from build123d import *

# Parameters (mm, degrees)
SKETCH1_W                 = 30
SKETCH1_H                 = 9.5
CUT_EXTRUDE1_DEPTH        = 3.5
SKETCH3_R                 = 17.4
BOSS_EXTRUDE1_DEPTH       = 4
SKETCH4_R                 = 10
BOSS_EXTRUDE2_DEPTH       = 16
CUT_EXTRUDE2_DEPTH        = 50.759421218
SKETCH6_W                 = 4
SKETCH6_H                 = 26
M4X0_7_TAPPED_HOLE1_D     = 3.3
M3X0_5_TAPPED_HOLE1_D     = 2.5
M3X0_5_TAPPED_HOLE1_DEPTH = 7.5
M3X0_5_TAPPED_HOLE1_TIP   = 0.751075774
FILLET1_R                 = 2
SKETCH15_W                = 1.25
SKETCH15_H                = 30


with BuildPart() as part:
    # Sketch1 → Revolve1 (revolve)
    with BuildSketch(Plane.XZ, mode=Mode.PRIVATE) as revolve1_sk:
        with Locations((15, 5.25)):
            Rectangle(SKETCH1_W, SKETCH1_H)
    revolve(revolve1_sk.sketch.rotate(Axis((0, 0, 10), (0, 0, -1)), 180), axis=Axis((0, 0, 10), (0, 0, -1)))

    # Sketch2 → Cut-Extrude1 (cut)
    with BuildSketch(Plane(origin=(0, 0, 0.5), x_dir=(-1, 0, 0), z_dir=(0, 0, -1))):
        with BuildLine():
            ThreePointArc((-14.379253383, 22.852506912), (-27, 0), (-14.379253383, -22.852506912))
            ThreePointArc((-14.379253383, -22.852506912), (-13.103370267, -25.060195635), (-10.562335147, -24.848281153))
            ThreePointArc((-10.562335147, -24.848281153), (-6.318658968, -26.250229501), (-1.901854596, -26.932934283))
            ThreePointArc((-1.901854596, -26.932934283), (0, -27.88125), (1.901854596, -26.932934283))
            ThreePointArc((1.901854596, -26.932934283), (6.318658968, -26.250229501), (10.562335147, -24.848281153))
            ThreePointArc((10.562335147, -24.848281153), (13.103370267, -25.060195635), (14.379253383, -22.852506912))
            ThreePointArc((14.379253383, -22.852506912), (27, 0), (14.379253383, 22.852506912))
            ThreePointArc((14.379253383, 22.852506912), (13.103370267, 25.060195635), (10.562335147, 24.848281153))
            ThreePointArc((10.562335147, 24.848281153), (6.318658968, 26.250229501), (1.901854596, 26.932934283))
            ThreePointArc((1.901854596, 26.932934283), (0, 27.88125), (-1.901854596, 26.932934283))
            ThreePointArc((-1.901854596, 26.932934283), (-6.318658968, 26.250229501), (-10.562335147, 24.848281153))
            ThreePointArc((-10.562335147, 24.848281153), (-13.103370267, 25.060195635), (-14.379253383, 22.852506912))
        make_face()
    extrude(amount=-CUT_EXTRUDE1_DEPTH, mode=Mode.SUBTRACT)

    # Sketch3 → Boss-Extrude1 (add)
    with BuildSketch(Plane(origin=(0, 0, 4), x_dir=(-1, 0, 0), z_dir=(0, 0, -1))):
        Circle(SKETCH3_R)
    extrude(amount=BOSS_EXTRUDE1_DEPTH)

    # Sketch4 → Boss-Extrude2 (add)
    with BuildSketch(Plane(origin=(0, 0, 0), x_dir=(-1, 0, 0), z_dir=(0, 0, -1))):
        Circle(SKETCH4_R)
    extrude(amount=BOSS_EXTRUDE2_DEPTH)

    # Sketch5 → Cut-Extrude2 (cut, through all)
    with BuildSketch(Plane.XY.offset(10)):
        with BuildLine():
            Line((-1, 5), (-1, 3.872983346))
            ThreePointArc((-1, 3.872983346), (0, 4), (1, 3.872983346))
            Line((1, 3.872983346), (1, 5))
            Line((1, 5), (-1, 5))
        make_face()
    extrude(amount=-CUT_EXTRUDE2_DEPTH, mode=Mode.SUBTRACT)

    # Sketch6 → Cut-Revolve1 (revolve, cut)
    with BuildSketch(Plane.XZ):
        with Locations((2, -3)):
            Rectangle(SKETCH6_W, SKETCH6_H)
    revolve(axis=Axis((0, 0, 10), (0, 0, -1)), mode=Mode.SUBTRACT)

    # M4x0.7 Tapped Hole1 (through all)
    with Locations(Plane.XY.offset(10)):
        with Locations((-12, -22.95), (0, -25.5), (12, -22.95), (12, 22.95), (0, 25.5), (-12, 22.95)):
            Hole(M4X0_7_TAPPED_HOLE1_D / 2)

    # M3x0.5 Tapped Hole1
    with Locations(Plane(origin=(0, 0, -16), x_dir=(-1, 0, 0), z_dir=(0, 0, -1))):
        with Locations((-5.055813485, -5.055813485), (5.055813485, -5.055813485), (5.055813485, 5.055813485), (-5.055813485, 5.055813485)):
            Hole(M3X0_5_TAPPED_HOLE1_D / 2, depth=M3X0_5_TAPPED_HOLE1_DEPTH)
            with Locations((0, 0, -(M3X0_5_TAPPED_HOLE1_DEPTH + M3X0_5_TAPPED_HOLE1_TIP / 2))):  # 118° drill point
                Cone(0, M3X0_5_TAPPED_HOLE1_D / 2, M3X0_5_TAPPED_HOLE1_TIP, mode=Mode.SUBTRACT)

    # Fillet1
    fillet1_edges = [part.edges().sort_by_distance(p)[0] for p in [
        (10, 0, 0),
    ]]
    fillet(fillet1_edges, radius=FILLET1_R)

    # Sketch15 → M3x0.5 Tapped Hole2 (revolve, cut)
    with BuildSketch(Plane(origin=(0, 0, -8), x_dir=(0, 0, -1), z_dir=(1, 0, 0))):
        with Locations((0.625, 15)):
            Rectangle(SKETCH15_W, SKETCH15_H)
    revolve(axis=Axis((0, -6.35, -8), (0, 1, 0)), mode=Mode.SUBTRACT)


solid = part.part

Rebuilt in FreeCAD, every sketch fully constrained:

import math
import FreeCAD as App
import Part
import Sketcher
from FreeCAD import Vector


def edges_at(feature, points):
    """Names of the edges that pass closest to the given points."""
    edges = feature.Shape.Edges
    near = lambda p: min(range(len(edges)), key=lambda i: edges[i].distToShape(Part.Vertex(*p))[0])
    return sorted({f"Edge{near(p) + 1}" for p in points})

doc = App.newDocument("Part")
body = doc.addObject("PartDesign::Body", "Body")

# Sketch on XZ plane
sketch1 = body.newObject("Sketcher::SketchObject", "Sketch")
sketch1.AttachmentSupport = (doc.getObject("XZ_Plane"), [""])
sketch1.MapMode = "FlatFace"
sketch1.addGeometry([
    Part.LineSegment(Vector(0, 10, 0), Vector(0, 0, 0)),
    Part.LineSegment(Vector(0, 0, 0), Vector(30, 0, 0)),
    Part.LineSegment(Vector(30, 0, 0), Vector(30, 10, 0)),
    Part.LineSegment(Vector(30, 10, 0), Vector(0, 10, 0)),
], False)
sketch1.addConstraint([
    Sketcher.Constraint("Coincident", 0, 2, 1, 1),
    Sketcher.Constraint("Coincident", 1, 2, 2, 1),
    Sketcher.Constraint("Coincident", 2, 2, 3, 1),
    Sketcher.Constraint("Coincident", 3, 2, 0, 1),
    Sketcher.Constraint("Vertical", 0),
    Sketcher.Constraint("Horizontal", 1),
    Sketcher.Constraint("Vertical", 2),
    Sketcher.Constraint("Horizontal", 3),
    Sketcher.Constraint("PointOnObject", 0, 2, -2),
    Sketcher.Constraint("DistanceX", 1, 1, 1, 2, 30.0),
    Sketcher.Constraint("DistanceY", 0, 2, 0, 1, 9.5),
    Sketcher.Constraint("DistanceY", -1, 1, 2, 2, 10.0),
])
revolution = body.newObject("PartDesign::Revolution", "Revolution")
revolution.Profile = sketch1
revolution.ReferenceAxis = (sketch1, ["V_Axis"])
revolution.Angle = 360

# Sketch on XY plane
sketch2 = body.newObject("Sketcher::SketchObject", "Sketch001")
sketch2.AttachmentSupport = (doc.getObject("XY_Plane"), [""])
sketch2.MapMode = "FlatFace"
sketch2.AttachmentOffset = App.Placement(Vector(0, 0, 0.5), App.Rotation())
sketch2.addGeometry([
    Part.ArcOfCircle(Part.Circle(Vector(0, 0, 0), Vector(0, 0, 1), 27), math.radians(-58), math.radians(58)),  # 0
    Part.ArcOfCircle(Part.Circle(Vector(12, -22.9, 0), Vector(0, 0, 1), 2.4), math.radians(-127), math.radians(2)),  # 1
    Part.ArcOfCircle(Part.Circle(Vector(0, 0, 0), Vector(0, 0, 1), 27), math.radians(-85.96), math.radians(-66.97)),  # 2
    Part.ArcOfCircle(Part.Circle(Vector(0, -25.5, 0), Vector(0, 0, 1), 2.4), math.radians(-143), math.radians(-37)),  # 3
    Part.ArcOfCircle(Part.Circle(Vector(0, 0, 0), Vector(0, 0, 1), 27), math.radians(-113.03), math.radians(-94.04)),  # 4
    Part.ArcOfCircle(Part.Circle(Vector(-12, -22.9, 0), Vector(0, 0, 1), 2.4), math.radians(178), math.radians(307)),  # 5
    Part.ArcOfCircle(Part.Circle(Vector(0, 0, 0), Vector(0, 0, 1), 27), math.radians(122), math.radians(238)),  # 6
    Part.ArcOfCircle(Part.Circle(Vector(-12, 22.9, 0), Vector(0, 0, 1), 2.4), math.radians(53), math.radians(182)),  # 7
    Part.ArcOfCircle(Part.Circle(Vector(0, 0, 0), Vector(0, 0, 1), 27), math.radians(94.04), math.radians(113.03)),  # 8
    Part.ArcOfCircle(Part.Circle(Vector(0, 25.5, 0), Vector(0, 0, 1), 2.4), math.radians(37), math.radians(143)),  # 9
    Part.ArcOfCircle(Part.Circle(Vector(0, 0, 0), Vector(0, 0, 1), 27), math.radians(66.97), math.radians(85.96)),  # 10
    Part.ArcOfCircle(Part.Circle(Vector(12, 22.9, 0), Vector(0, 0, 1), 2.4), math.radians(-2), math.radians(127)),  # 11
], False)
sketch2.addConstraint([
    Sketcher.Constraint("Coincident", 0, 1, 1, 2),
    Sketcher.Constraint("Coincident", 1, 1, 2, 2),
    Sketcher.Constraint("Coincident", 2, 1, 3, 2),
    Sketcher.Constraint("Coincident", 3, 1, 4, 2),
    Sketcher.Constraint("Coincident", 4, 1, 5, 2),
    Sketcher.Constraint("Coincident", 5, 1, 6, 2),
    Sketcher.Constraint("Coincident", 6, 1, 7, 2),
    Sketcher.Constraint("Coincident", 7, 1, 8, 2),
    Sketcher.Constraint("Coincident", 8, 1, 9, 2),
    Sketcher.Constraint("Coincident", 9, 1, 10, 2),
    Sketcher.Constraint("Coincident", 10, 1, 11, 2),
    Sketcher.Constraint("Coincident", 11, 1, 0, 2),
    Sketcher.Constraint("Coincident", 0, 3, -1, 1),
    Sketcher.Constraint("Coincident", 2, 3, -1, 1),
    Sketcher.Constraint("Coincident", 4, 3, -1, 1),
    Sketcher.Constraint("Coincident", 6, 3, -1, 1),
    Sketcher.Constraint("Coincident", 8, 3, -1, 1),
    Sketcher.Constraint("Coincident", 10, 3, -1, 1),
    Sketcher.Constraint("Equal", 0, 2),
    Sketcher.Constraint("Equal", 1, 3),
    Sketcher.Constraint("Equal", 2, 4),
    Sketcher.Constraint("Equal", 3, 5),
    Sketcher.Constraint("Equal", 4, 6),
    Sketcher.Constraint("Equal", 5, 7),
    Sketcher.Constraint("Equal", 6, 8),
    Sketcher.Constraint("Equal", 7, 9),
    Sketcher.Constraint("Equal", 8, 10),
    Sketcher.Constraint("Equal", 9, 11),
    Sketcher.Constraint("Symmetric", 1, 3, 7, 3, -1, 1),
    Sketcher.Constraint("Symmetric", 3, 3, 9, 3, -1, 1),
    Sketcher.Constraint("Symmetric", 5, 3, 11, 3, -1, 1),
    Sketcher.Constraint("Symmetric", 1, 3, 5, 3, -2),
    Sketcher.Constraint("PointOnObject", 3, 3, -2),
    Sketcher.Constraint("Radius", 0, 27.0),
    Sketcher.Constraint("DistanceX", -1, 1, 1, 3, 12.0),
    Sketcher.Constraint("DistanceY", 3, 3, -1, 1, 25.5),
    Sketcher.Constraint("DistanceY", 5, 3, 7, 3, 45.9),
    Sketcher.Constraint("Radius", 1, 2.38125),
])
pocket1 = body.newObject("PartDesign::Pocket", "Pocket")
pocket1.Profile = sketch2
pocket1.Length = 3.5
pocket1.Reversed = True

# Sketch on XY plane
sketch3 = body.newObject("Sketcher::SketchObject", "Sketch002")
sketch3.AttachmentSupport = (doc.getObject("XY_Plane"), [""])
sketch3.MapMode = "FlatFace"
sketch3.AttachmentOffset = App.Placement(Vector(0, 0, 4), App.Rotation())
sketch3.addGeometry(Part.Circle(Vector(0, 0, 0), Vector(0, 0, 1), 17), False)
sketch3.addConstraint([
    Sketcher.Constraint("Coincident", 0, 3, -1, 1),
    Sketcher.Constraint("Diameter", 0, 34.8),
])
pad1 = body.newObject("PartDesign::Pad", "Pad")
pad1.Profile = sketch3
pad1.Length = 4
pad1.Reversed = True

# Sketch on XY plane
sketch4 = body.newObject("Sketcher::SketchObject", "Sketch003")
sketch4.AttachmentSupport = (doc.getObject("XY_Plane"), [""])
sketch4.MapMode = "FlatFace"
sketch4.addGeometry(Part.Circle(Vector(0, 0, 0), Vector(0, 0, 1), 10), False)
sketch4.addConstraint([
    Sketcher.Constraint("Coincident", 0, 3, -1, 1),
    Sketcher.Constraint("Diameter", 0, 20.0),
])
pad2 = body.newObject("PartDesign::Pad", "Pad001")
pad2.Profile = sketch4
pad2.Length = 16
pad2.Reversed = True

# Sketch on XY plane
sketch5 = body.newObject("Sketcher::SketchObject", "Sketch004")
sketch5.AttachmentSupport = (doc.getObject("XY_Plane"), [""])
sketch5.MapMode = "FlatFace"
sketch5.AttachmentOffset = App.Placement(Vector(0, 0, 10), App.Rotation())
sketch5.addGeometry([
    Part.LineSegment(Vector(-1, 5, 0), Vector(-1, 3.9, 0)),
    Part.ArcOfCircle(Part.Circle(Vector(0, 0, 0), Vector(0, 0, 1), 4), math.radians(76), math.radians(104)),
    Part.LineSegment(Vector(1, 3.9, 0), Vector(1, 5, 0)),
    Part.LineSegment(Vector(1, 5, 0), Vector(-1, 5, 0)),
], False)
sketch5.addConstraint([
    Sketcher.Constraint("Coincident", 0, 2, 1, 2),
    Sketcher.Constraint("Coincident", 1, 1, 2, 1),
    Sketcher.Constraint("Coincident", 2, 2, 3, 1),
    Sketcher.Constraint("Coincident", 3, 2, 0, 1),
    Sketcher.Constraint("Vertical", 0),
    Sketcher.Constraint("Vertical", 2),
    Sketcher.Constraint("Horizontal", 3),
    Sketcher.Constraint("Coincident", 1, 3, -1, 1),
    Sketcher.Constraint("Horizontal", 0, 2, 1, 1),
    Sketcher.Constraint("Radius", 1, 4.0),
    Sketcher.Constraint("DistanceX", 3, 2, 3, 1, 2.0),
    Sketcher.Constraint("DistanceY", -1, 1, 2, 2, 5.0),
])
pocket2 = body.newObject("PartDesign::Pocket", "Pocket001")
pocket2.Profile = sketch5
pocket2.Type = "ThroughAll"

# Sketch on XZ plane
sketch6 = body.newObject("Sketcher::SketchObject", "Sketch005")
sketch6.AttachmentSupport = (doc.getObject("XZ_Plane"), [""])
sketch6.MapMode = "FlatFace"
sketch6.addGeometry([
    Part.LineSegment(Vector(0, 10, 0), Vector(0, -16, 0)),
    Part.LineSegment(Vector(0, -16, 0), Vector(4, -16, 0)),
    Part.LineSegment(Vector(4, -16, 0), Vector(4, 10, 0)),
    Part.LineSegment(Vector(4, 10, 0), Vector(0, 10, 0)),
], False)
sketch6.addConstraint([
    Sketcher.Constraint("Coincident", 0, 2, 1, 1),
    Sketcher.Constraint("Coincident", 1, 2, 2, 1),
    Sketcher.Constraint("Coincident", 2, 2, 3, 1),
    Sketcher.Constraint("Coincident", 3, 2, 0, 1),
    Sketcher.Constraint("Vertical", 0),
    Sketcher.Constraint("Horizontal", 1),
    Sketcher.Constraint("Vertical", 2),
    Sketcher.Constraint("Horizontal", 3),
    Sketcher.Constraint("PointOnObject", 0, 2, -2),
    Sketcher.Constraint("DistanceX", 1, 1, 1, 2, 4.0),
    Sketcher.Constraint("DistanceY", 0, 2, 0, 1, 26.0),
    Sketcher.Constraint("DistanceY", 0, 2, -1, 1, 16.0),
])
groove = body.newObject("PartDesign::Groove", "Groove")
groove.Profile = sketch6
groove.ReferenceAxis = (sketch6, ["V_Axis"])
groove.Angle = 360

# Sketch on XY plane
sketch7 = body.newObject("Sketcher::SketchObject", "Sketch006")
sketch7.AttachmentSupport = (doc.getObject("XY_Plane"), [""])
sketch7.MapMode = "FlatFace"
sketch7.AttachmentOffset = App.Placement(Vector(0, 0, 10), App.Rotation())
sketch7.addGeometry([
    Part.Circle(Vector(-12, -22.9, 0), Vector(0, 0, 1), 1.6),  # 0
    Part.Circle(Vector(0, -25.5, 0), Vector(0, 0, 1), 1.6),  # 1
    Part.Circle(Vector(12, -22.9, 0), Vector(0, 0, 1), 1.6),  # 2
    Part.Circle(Vector(12, 22.9, 0), Vector(0, 0, 1), 1.6),  # 3
    Part.Circle(Vector(0, 25.5, 0), Vector(0, 0, 1), 1.6),  # 4
    Part.Circle(Vector(-12, 22.9, 0), Vector(0, 0, 1), 1.6),  # 5
], False)
sketch7.addConstraint([
    Sketcher.Constraint("Equal", 0, 1),
    Sketcher.Constraint("Equal", 1, 2),
    Sketcher.Constraint("Equal", 2, 3),
    Sketcher.Constraint("Equal", 3, 4),
    Sketcher.Constraint("Equal", 4, 5),
    Sketcher.Constraint("Symmetric", 0, 3, 3, 3, -1, 1),
    Sketcher.Constraint("Symmetric", 1, 3, 4, 3, -1, 1),
    Sketcher.Constraint("Symmetric", 2, 3, 5, 3, -1, 1),
    Sketcher.Constraint("Symmetric", 0, 3, 2, 3, -2),
    Sketcher.Constraint("PointOnObject", 1, 3, -2),
    Sketcher.Constraint("Diameter", 0, 3.3),
    Sketcher.Constraint("DistanceX", 0, 3, -1, 1, 12.0),
    Sketcher.Constraint("DistanceY", 1, 3, 4, 3, 51.0),
    Sketcher.Constraint("DistanceY", 2, 3, 3, 3, 45.9),
])
doc.recompute()
hole = body.newObject("PartDesign::Hole", "Hole")
hole.Profile = sketch7
hole.ThreadType = "None"
hole.Diameter = 3.3
hole.DepthType = "ThroughAll"

# Sketch on XY plane
sketch8 = body.newObject("Sketcher::SketchObject", "Sketch007")
sketch8.AttachmentSupport = (doc.getObject("XY_Plane"), [""])
sketch8.MapMode = "FlatFace"
sketch8.AttachmentOffset = App.Placement(Vector(0, 0, -16), App.Rotation())
sketch8.addGeometry([
    Part.Circle(Vector(5.1, -5.1, 0), Vector(0, 0, 1), 1.2),
    Part.Circle(Vector(-5.1, -5.1, 0), Vector(0, 0, 1), 1.2),
    Part.Circle(Vector(-5.1, 5.1, 0), Vector(0, 0, 1), 1.2),
    Part.Circle(Vector(5.1, 5.1, 0), Vector(0, 0, 1), 1.2),
], False)
sketch8.addConstraint([
    Sketcher.Constraint("Equal", 0, 1),
    Sketcher.Constraint("Equal", 1, 2),
    Sketcher.Constraint("Equal", 2, 3),
    Sketcher.Constraint("Symmetric", 0, 3, 2, 3, -1, 1),
    Sketcher.Constraint("Symmetric", 1, 3, 3, 3, -1, 1),
    Sketcher.Constraint("Symmetric", 0, 3, 1, 3, -2),
    Sketcher.Constraint("Diameter", 0, 2.5),
    Sketcher.Constraint("DistanceX", -1, 1, 0, 3, 5.055813),
    Sketcher.Constraint("DistanceY", 0, 3, -1, 1, 5.055813),
])
doc.recompute()
hole2 = body.newObject("PartDesign::Hole", "Hole001")
hole2.Profile = sketch8
hole2.ThreadType = "None"
hole2.Diameter = 2.5
hole2.DepthType = "Dimension"
hole2.Depth = 7.5
hole2.DrillPoint = "Angled"
hole2.DrillPointAngle = 118
hole2.Reversed = True
doc.recompute()

fillet = body.newObject("PartDesign::Fillet", "Fillet")
fillet.Base = (hole2, edges_at(hole2, [(10, 0, 0)]))
fillet.Radius = 2

# Sketch on YZ plane
sketch9 = body.newObject("Sketcher::SketchObject", "Sketch008")
sketch9.AttachmentSupport = (doc.getObject("YZ_Plane"), [""])
sketch9.MapMode = "FlatFace"
sketch9.addGeometry([
    Part.LineSegment(Vector(30, -8, 0), Vector(0, -8, 0)),
    Part.LineSegment(Vector(0, -8, 0), Vector(0, -9.2, 0)),
    Part.LineSegment(Vector(0, -9.2, 0), Vector(30, -9.2, 0)),
    Part.LineSegment(Vector(30, -9.2, 0), Vector(30, -8, 0)),
], False)
sketch9.addGeometry(Part.LineSegment(Vector(0, -8, 0), Vector(30, -8, 0)), True)  # axis
sketch9.addConstraint([
    Sketcher.Constraint("Coincident", 0, 2, 1, 1),
    Sketcher.Constraint("Coincident", 1, 2, 2, 1),
    Sketcher.Constraint("Coincident", 2, 2, 3, 1),
    Sketcher.Constraint("Coincident", 3, 2, 0, 1),
    Sketcher.Constraint("Horizontal", 0),
    Sketcher.Constraint("Vertical", 1),
    Sketcher.Constraint("Horizontal", 2),
    Sketcher.Constraint("Vertical", 3),
    Sketcher.Constraint("Horizontal", 4),
    Sketcher.Constraint("Coincident", 4, 1, 0, 2),
    Sketcher.Constraint("PointOnObject", 0, 2, -2),
    Sketcher.Constraint("Vertical", 2, 2, 4, 2),
    Sketcher.Constraint("DistanceX", 0, 2, 0, 1, 30.0),
    Sketcher.Constraint("DistanceY", 0, 2, -1, 1, 8.0),
    Sketcher.Constraint("DistanceY", 1, 2, 1, 1, 1.25),
])
groove2 = body.newObject("PartDesign::Groove", "Groove001")
groove2.Profile = sketch9
groove2.ReferenceAxis = (sketch9, ["Axis0"])
groove2.Angle = 360

doc.recompute()
